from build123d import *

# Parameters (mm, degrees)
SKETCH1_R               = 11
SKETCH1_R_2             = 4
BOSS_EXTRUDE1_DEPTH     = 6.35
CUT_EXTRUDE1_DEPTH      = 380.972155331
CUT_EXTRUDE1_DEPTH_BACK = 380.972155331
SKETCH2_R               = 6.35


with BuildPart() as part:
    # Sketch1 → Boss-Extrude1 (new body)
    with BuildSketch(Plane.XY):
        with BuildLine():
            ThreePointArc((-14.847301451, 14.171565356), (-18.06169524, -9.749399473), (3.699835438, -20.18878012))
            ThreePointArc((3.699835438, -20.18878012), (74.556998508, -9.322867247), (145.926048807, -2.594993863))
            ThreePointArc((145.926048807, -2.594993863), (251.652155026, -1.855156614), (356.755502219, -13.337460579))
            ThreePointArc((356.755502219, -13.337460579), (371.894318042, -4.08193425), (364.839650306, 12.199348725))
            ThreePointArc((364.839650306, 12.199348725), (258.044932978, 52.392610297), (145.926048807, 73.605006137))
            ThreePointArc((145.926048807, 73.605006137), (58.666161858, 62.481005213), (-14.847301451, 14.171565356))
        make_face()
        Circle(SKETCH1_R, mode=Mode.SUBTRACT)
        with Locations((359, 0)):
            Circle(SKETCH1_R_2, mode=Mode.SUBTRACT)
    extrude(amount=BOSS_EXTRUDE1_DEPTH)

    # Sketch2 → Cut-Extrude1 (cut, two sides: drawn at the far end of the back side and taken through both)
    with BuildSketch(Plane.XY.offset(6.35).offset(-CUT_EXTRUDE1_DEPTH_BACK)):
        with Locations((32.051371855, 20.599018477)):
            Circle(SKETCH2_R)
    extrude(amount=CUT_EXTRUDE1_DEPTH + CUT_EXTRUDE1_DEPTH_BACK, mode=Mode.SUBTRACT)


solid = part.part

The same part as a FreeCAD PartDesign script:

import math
import FreeCAD as App
import Part
import Sketcher

doc = App.newDocument("Part")
body = doc.addObject("PartDesign::Body", "Body")

# Sketch on XY plane
sketch1 = body.newObject("Sketcher::SketchObject", "Sketch")
sketch1.AttachmentSupport = (doc.getObject("XY_Plane"), [""])
sketch1.MapMode = "FlatFace"
sketch1.addGeometry([
    Part.ArcOfCircle(Part.Circle(App.Vector(0, 0, 0), App.Vector(0, 0, 1), 20.525), math.radians(136.333954), math.radians(280.384901)),  # 0
    Part.ArcOfCircle(Part.Circle(App.Vector(225.861488, -1232.451549, 0), App.Vector(0, 0, 1), 1232.451549), math.radians(93.718751), math.radians(100.384901)),  # 1
    Part.ArcOfCircle(Part.Circle(App.Vector(205.170123, -914.102004, 0), App.Vector(0, 0, 1), 913.430287), math.radians(80.44747), math.radians(93.718751)),  # 2
    Part.ArcOfCircle(Part.Circle(App.Vector(359, 0, 0), App.Vector(0, 0, 1), 13.525), math.radians(-99.55253), math.radians(64.420242)),  # 3
    Part.ArcOfCircle(Part.Circle(App.Vector(79.660144, -583.55623, 0), App.Vector(0, 0, 1), 660.4938), math.radians(64.420242), math.radians(84.241952)),  # 4
    Part.ArcOfCircle(Part.Circle(App.Vector(126.343729, -120.593525, 0), App.Vector(0, 0, 1), 195.183341), math.radians(84.241952), math.radians(136.333954)),  # 5
    Part.Circle(App.Vector(0, 0, 0), App.Vector(0, 0, 1), 11),  # 6
    Part.Circle(App.Vector(359, 0, 0), App.Vector(0, 0, 1), 4),  # 7
], False)
sketch1.addConstraint([
    Sketcher.Constraint("Tangent", 0, 2, 1, 2),
    Sketcher.Constraint("Tangent", 1, 1, 2, 2),
    Sketcher.Constraint("Tangent", 2, 1, 3, 1),
    Sketcher.Constraint("Tangent", 3, 2, 4, 1),
    Sketcher.Constraint("Tangent", 4, 2, 5, 1),
    Sketcher.Constraint("Tangent", 5, 2, 0, 1),
    Sketcher.Constraint("Coincident", 0, 3, -1, 1),
    Sketcher.Constraint("Coincident", 6, 3, -1, 1),
    Sketcher.Constraint("Coincident", 7, 3, 3, 3),
    Sketcher.Constraint("PointOnObject", 3, 3, -1),
    Sketcher.Constraint("Vertical", 1, 1, 4, 2),
    Sketcher.Constraint("Diameter", 6, 22.0),
    Sketcher.Constraint("Diameter", 7, 8.0),
    Sketcher.Constraint("DistanceX", -1, 1, 3, 3, 359.0),
    Sketcher.Constraint("Radius", 0, 20.525),
    Sketcher.Constraint("Radius", 3, 13.525),
    Sketcher.Constraint("Radius", 4, 660.4938),
    Sketcher.Constraint("DistanceY", 1, 1, 4, 2, 76.2),
    Sketcher.Constraint("Radius", 1, 1232.451549),
    Sketcher.Constraint("Radius", 5, 195.183341),
    Sketcher.Constraint("Radius", 2, 913.430287),
])
pad1 = body.newObject("PartDesign::Pad", "Pad")
pad1.Profile = sketch1
pad1.Length = 6.35

# Sketch on XY plane
sketch2 = body.newObject("Sketcher::SketchObject", "Sketch001")
sketch2.AttachmentSupport = (doc.getObject("XY_Plane"), [""])
sketch2.MapMode = "FlatFace"
sketch2.AttachmentOffset = App.Placement(App.Vector(0, 0, 6.35), App.Rotation())
sketch2.addGeometry(Part.Circle(App.Vector(32.051372, 20.599018, 0), App.Vector(0, 0, 1), 6.35), False)
sketch2.addConstraint([
    Sketcher.Constraint("Diameter", 0, 12.7),
    Sketcher.Constraint("DistanceX", -1, 1, 0, 3, 32.051372),
    Sketcher.Constraint("DistanceY", -1, 1, 0, 3, 20.599018),
])
pocket1 = body.newObject("PartDesign::Pocket", "Pocket")
pocket1.Profile = sketch2
pocket1.Type = "ThroughAll"
pocket1.Midplane = True

doc.recompute()
